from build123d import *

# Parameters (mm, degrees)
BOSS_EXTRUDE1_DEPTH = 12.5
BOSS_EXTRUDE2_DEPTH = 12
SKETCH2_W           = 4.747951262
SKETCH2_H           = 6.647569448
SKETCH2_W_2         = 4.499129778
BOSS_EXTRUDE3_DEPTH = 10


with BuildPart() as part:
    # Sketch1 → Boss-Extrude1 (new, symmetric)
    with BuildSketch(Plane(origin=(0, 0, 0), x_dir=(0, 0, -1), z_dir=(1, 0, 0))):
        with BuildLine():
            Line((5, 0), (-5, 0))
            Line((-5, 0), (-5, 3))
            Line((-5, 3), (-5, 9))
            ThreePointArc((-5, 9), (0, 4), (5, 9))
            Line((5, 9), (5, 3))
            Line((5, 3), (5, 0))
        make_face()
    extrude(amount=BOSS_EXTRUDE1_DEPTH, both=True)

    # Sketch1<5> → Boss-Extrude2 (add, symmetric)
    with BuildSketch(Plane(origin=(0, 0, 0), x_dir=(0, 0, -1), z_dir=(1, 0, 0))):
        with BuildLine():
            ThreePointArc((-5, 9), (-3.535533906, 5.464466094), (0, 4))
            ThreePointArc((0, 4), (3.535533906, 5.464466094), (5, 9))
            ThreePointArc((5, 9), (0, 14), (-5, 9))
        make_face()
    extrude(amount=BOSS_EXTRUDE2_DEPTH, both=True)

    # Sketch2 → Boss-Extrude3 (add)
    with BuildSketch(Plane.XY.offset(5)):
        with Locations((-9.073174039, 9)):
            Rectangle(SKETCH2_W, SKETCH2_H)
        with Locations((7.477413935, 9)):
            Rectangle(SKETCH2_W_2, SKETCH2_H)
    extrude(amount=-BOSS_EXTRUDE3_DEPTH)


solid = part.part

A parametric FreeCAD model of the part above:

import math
import FreeCAD as App
import Part
import Sketcher
Q = App.Units.Quantity


def add_polygon(sketch, points):
    """Adds a closed chain of lines whose ends are joined by coincident constraints."""
    first, n = sketch.GeometryCount, len(points)
    for a, b in zip(points, points[1:] + points[:1]):
        sketch.addGeometry(Part.LineSegment(App.Vector(*a, 0), App.Vector(*b, 0)), False)
    for i in range(n):
        sketch.addConstraint(Sketcher.Constraint("Coincident", first + i, 2, first + (i + 1) % n, 1))

doc = App.newDocument("Part")
body = doc.addObject("PartDesign::Body", "Body")

# Sketch on YZ plane
sketch1 = doc.addObject("Sketcher::SketchObject", "Sketch")
body.addObject(sketch1)
sketch1.AttachmentSupport = (doc.YZ_Plane, [""])
sketch1.MapMode = "FlatFace"
sketch1.addGeometry([
    Part.LineSegment(App.Vector(0, 5, 0), App.Vector(0, -5, 0)),
    Part.LineSegment(App.Vector(0, -5, 0), App.Vector(9, -5, 0)),
    Part.ArcOfCircle(Part.Circle(App.Vector(9, 0, 0), App.Vector(0, 0, 1), 5), math.radians(90), math.radians(270)),
    Part.LineSegment(App.Vector(9, 5, 0), App.Vector(0, 5, 0)),
], False)
sketch1.addConstraint([
    Sketcher.Constraint("Coincident", 0, 2, 1, 1),
    Sketcher.Constraint("Tangent", 1, 2, 2, 2),
    Sketcher.Constraint("Tangent", 2, 1, 3, 1),
    Sketcher.Constraint("Coincident", 3, 2, 0, 1),
    Sketcher.Constraint("Vertical", 0),
    Sketcher.Constraint("Horizontal", 1),
    Sketcher.Constraint("Horizontal", 3),
    Sketcher.Constraint("Symmetric", 0, 2, 3, 2, -1, 1),
    Sketcher.Constraint("Radius", 2, Q("5 mm")),
    Sketcher.Constraint("DistanceX", 1, 1, 1, 2, Q("9 mm")),
])
pad1 = doc.addObject("PartDesign::Pad", "Pad")
body.addObject(pad1)
pad1.Profile = sketch1
pad1.Length = 25
pad1.Midplane = True

# Sketch on YZ plane
sketch2 = doc.addObject("Sketcher::SketchObject", "Sketch001")
body.addObject(sketch2)
sketch2.AttachmentSupport = (doc.YZ_Plane, [""])
sketch2.MapMode = "FlatFace"
sketch2.addGeometry([
    Part.ArcOfCircle(Part.Circle(App.Vector(9, 0, 0), App.Vector(0, 0, 1), 5), math.radians(90), math.radians(180)),
    Part.ArcOfCircle(Part.Circle(App.Vector(9, 0, 0), App.Vector(0, 0, 1), 5), math.radians(180), math.radians(270)),
    Part.ArcOfCircle(Part.Circle(App.Vector(9, 0, 0), App.Vector(0, 0, 1), 5), math.radians(-90), math.radians(90)),
], False)
sketch2.addConstraint([
    Sketcher.Constraint("Tangent", 0, 2, 1, 1),
    Sketcher.Constraint("Tangent", 1, 2, 2, 1),
    Sketcher.Constraint("Tangent", 2, 2, 0, 1),
    Sketcher.Constraint("Symmetric", 1, 2, 2, 2, -1),
    Sketcher.Constraint("PointOnObject", 0, 2, -1),
    Sketcher.Constraint("Vertical", 2, 3, 1, 2),
    Sketcher.Constraint("Radius", 0, Q("5 mm")),
    Sketcher.Constraint("DistanceX", -1, 1, 0, 3, Q("9 mm")),
])
pad2 = doc.addObject("PartDesign::Pad", "Pad001")
body.addObject(pad2)
pad2.Profile = sketch2
pad2.Length = 24
pad2.Midplane = True

# Sketch on XY plane
sketch3 = doc.addObject("Sketcher::SketchObject", "Sketch002")
body.addObject(sketch3)
sketch3.AttachmentSupport = (doc.XY_Plane, [""])
sketch3.MapMode = "FlatFace"
sketch3.AttachmentOffset = App.Placement(App.Vector(0, 0, 5), App.Rotation())
add_polygon(sketch3, [(-11.44715, 12.323785), (-11.44715, 5.676215), (-6.699198, 5.676215), (-6.699198, 12.323785)])  # lines 0-3
add_polygon(sketch3, [(5.227849, 12.323785), (5.227849, 5.676215), (9.726979, 5.676215), (9.726979, 12.323785)])  # lines 4-7
sketch3.addConstraint([
    Sketcher.Constraint("Vertical", 0),
    Sketcher.Constraint("Horizontal", 1),
    Sketcher.Constraint("Vertical", 2),
    Sketcher.Constraint("Horizontal", 3),
    Sketcher.Constraint("Vertical", 4),
    Sketcher.Constraint("Horizontal", 5),
    Sketcher.Constraint("Vertical", 6),
    Sketcher.Constraint("Horizontal", 7),
    Sketcher.Constraint("Horizontal", 1, 2, 4, 2),
    Sketcher.Constraint("Horizontal", 3, 2, 6, 2),
    Sketcher.Constraint("DistanceX", 0, 2, 4, 2, Q("16.674999 mm")),
    Sketcher.Constraint("DistanceX", 1, 1, 1, 2, Q("4.747951 mm")),
    Sketcher.Constraint("DistanceX", 5, 1, 5, 2, Q("4.49913 mm")),
    Sketcher.Constraint("DistanceY", 0, 2, 0, 1, Q("6.647569 mm")),
    Sketcher.Constraint("DistanceX", 1, 2, -1, 1, Q("6.699198 mm")),
    Sketcher.Constraint("DistanceY", -1, 1, 0, 2, Q("5.676215 mm")),
])
pad3 = doc.addObject("PartDesign::Pad", "Pad002")
body.addObject(pad3)
pad3.Profile = sketch3
pad3.Length = 10
pad3.Reversed = True

doc.recompute()
